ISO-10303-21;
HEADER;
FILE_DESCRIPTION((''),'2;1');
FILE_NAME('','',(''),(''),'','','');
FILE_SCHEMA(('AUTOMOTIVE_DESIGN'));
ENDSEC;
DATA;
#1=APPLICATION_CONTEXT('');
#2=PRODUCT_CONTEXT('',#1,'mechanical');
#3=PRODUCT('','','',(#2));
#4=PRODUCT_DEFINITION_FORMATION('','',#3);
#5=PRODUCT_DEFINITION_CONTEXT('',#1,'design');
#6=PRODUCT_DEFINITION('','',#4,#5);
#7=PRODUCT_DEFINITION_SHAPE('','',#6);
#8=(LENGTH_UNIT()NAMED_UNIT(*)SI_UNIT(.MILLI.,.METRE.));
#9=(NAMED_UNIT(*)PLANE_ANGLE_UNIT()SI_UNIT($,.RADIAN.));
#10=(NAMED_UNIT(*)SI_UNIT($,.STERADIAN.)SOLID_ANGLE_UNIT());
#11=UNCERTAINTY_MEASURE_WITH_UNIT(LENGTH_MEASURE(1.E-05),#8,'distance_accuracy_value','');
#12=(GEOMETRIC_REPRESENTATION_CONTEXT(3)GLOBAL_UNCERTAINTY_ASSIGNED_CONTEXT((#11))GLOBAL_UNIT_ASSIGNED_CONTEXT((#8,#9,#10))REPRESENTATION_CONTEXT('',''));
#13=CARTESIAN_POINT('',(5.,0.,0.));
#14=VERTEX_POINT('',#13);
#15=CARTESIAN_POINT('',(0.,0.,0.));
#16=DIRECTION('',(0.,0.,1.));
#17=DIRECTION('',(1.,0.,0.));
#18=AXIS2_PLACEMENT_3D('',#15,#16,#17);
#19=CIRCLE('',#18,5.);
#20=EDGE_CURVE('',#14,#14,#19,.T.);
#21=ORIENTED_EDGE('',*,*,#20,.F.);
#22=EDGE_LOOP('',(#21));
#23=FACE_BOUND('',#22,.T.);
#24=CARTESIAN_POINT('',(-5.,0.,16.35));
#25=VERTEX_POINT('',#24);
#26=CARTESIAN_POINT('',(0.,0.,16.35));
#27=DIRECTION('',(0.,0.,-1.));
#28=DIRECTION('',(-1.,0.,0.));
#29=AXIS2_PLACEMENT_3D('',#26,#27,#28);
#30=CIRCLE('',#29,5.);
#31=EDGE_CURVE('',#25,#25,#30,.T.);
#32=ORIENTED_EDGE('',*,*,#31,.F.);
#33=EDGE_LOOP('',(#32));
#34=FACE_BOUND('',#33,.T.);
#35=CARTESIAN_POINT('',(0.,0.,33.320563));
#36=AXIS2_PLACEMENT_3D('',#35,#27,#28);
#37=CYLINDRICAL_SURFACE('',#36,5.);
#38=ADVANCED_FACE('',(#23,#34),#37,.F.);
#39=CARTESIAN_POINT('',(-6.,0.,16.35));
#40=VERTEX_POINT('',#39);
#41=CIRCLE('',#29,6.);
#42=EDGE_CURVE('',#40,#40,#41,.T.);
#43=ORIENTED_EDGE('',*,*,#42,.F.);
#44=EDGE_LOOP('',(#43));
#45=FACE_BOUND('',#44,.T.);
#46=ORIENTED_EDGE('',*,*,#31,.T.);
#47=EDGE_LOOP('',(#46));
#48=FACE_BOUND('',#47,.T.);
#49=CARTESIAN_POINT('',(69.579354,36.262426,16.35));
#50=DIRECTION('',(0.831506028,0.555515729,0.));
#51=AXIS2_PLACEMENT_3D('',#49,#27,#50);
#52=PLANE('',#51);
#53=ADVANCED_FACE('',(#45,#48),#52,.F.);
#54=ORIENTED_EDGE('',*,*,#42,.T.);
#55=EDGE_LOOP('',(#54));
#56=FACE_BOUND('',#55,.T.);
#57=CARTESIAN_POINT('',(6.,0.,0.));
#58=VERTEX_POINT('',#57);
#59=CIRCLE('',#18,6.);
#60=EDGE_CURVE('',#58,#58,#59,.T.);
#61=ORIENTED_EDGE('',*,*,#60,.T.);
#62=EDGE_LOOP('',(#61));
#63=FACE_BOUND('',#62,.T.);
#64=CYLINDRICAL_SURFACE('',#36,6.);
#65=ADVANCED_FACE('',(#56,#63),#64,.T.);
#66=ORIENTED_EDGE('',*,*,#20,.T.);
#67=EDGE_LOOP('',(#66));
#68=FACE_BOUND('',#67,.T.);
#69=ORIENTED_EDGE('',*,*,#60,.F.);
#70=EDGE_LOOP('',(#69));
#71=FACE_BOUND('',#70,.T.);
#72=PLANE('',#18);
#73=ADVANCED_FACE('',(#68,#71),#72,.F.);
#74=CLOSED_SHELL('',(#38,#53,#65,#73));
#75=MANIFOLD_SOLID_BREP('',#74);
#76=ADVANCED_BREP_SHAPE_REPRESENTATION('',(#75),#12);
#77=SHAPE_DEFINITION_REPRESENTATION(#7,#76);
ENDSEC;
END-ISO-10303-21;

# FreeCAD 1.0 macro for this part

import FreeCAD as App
import Part
import Sketcher

V = App.Vector

doc = App.newDocument("Part")
params = doc.addObject("Spreadsheet::Sheet", "Params")
for row, (alias, value) in enumerate([
    ("sketch1_diameter", "12 mm"),
    ("sketch1_diameter2", "10 mm"),
    ("pad1_length", "16.35 mm"),
], start=1):
    params.set(f"A{row}", alias)
    params.set(f"B{row}", "=" + value)
    params.setAlias(f"B{row}", alias)

body = doc.addObject("PartDesign::Body", "Body")

# Sketch on XY plane
sketch1 = body.newObject("Sketcher::SketchObject", "Sketch")
sketch1.AttachmentSupport = (doc.getObject("XY_Plane"), [""])
sketch1.MapMode = "FlatFace"
sketch1.addGeometry([
    Part.Circle(V(0, 0, 0), V(0, 0, 1), 6),
    Part.Circle(V(0, 0, 0), V(0, 0, 1), 5),
], False)
sketch1.addConstraint([
    Sketcher.Constraint("Coincident", 0, 3, -1, 1),
    Sketcher.Constraint("Coincident", 1, 3, -1, 1),
    Sketcher.Constraint("Diameter", 0, 12.0),
    Sketcher.Constraint("Diameter", 1, 10.0),
])
sketch1.setExpression("Constraints[2]", "Params.sketch1_diameter")
sketch1.setExpression("Constraints[3]", "Params.sketch1_diameter2")
pad1 = body.newObject("PartDesign::Pad", "Pad")
pad1.Profile = sketch1
pad1.setExpression("Length", "Params.pad1_length")

doc.recompute()
